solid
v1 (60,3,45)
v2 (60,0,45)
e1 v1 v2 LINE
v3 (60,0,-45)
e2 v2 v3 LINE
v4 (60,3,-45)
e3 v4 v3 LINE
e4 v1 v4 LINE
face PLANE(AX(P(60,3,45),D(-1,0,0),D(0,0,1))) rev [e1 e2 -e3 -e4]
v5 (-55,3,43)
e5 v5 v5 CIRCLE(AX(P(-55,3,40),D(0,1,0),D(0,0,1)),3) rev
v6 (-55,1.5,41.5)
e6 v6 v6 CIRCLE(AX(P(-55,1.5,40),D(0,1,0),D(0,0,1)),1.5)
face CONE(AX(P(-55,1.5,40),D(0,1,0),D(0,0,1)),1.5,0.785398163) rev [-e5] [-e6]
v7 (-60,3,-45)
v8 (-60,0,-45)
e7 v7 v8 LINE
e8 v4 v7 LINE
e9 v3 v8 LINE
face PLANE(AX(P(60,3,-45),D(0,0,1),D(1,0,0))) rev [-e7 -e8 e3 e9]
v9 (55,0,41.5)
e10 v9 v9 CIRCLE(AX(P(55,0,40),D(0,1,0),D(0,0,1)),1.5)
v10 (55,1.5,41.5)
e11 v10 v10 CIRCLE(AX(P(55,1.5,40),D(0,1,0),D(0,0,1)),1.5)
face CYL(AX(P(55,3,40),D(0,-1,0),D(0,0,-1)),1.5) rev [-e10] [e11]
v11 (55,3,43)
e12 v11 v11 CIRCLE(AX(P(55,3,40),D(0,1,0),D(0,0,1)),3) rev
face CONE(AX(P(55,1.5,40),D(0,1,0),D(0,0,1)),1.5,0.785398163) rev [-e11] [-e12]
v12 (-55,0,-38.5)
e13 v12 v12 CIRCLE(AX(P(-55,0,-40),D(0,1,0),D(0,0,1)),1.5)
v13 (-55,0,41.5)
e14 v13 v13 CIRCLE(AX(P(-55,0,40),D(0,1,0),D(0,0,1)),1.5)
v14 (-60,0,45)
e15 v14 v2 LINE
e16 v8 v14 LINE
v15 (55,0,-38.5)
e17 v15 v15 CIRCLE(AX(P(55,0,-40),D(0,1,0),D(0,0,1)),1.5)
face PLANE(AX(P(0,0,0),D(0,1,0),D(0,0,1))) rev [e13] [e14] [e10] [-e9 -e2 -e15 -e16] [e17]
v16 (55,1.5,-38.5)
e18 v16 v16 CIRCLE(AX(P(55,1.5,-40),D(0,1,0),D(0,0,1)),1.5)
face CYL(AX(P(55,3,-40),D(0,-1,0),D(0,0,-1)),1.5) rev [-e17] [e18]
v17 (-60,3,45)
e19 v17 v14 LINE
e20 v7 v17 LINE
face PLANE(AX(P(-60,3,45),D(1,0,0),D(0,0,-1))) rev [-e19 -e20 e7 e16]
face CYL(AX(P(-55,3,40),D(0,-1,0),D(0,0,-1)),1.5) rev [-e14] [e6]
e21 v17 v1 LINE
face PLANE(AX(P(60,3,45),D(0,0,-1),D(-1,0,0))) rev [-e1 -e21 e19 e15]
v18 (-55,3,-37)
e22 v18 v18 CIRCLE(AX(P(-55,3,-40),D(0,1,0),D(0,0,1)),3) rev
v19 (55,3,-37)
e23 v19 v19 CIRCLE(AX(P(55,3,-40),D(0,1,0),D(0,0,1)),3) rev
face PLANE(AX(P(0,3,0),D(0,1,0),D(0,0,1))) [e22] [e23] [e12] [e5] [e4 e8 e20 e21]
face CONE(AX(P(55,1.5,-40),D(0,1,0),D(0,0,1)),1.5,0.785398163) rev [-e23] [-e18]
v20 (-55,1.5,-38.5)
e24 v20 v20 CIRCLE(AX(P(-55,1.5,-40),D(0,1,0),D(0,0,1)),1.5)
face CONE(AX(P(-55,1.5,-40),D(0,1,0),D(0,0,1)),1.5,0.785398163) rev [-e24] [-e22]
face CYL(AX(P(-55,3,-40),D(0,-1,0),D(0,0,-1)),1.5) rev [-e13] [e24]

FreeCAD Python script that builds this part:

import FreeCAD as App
import Part
import Sketcher


def edges_at(feature, points):
    """Names of the edges that pass closest to the given points."""
    edges = feature.Shape.Edges
    near = lambda p: min(range(len(edges)), key=lambda i: edges[i].distToShape(Part.Vertex(*p))[0])
    return sorted({f"Edge{near(p) + 1}" for p in points})


def add_polygon(sketch, points):
    """Adds a closed chain of lines whose ends are joined by coincident constraints."""
    first, n = sketch.GeometryCount, len(points)
    for a, b in zip(points, points[1:] + points[:1]):
        sketch.addGeometry(Part.LineSegment(App.Vector(*a, 0), App.Vector(*b, 0)), False)
    for i in range(n):
        sketch.addConstraint(Sketcher.Constraint("Coincident", first + i, 2, first + (i + 1) % n, 1))

doc = App.newDocument("Part")
body = doc.addObject("PartDesign::Body", "Body")

sketch1 = body.newObject("Sketcher::SketchObject", "Sketch")
sketch1.AttachmentSupport = (doc.getObject("XZ_Plane"), [""])
sketch1.MapMode = "FlatFace"
add_polygon(sketch1, [(-60, -45), (-60, 45), (60, 45), (60, -45)])
sketch1.addGeometry(Part.Circle(App.Vector(-55, 40, 0), App.Vector(0, 0, 1), 1.5), False)
sketch1.addGeometry(Part.Circle(App.Vector(55, 40, 0), App.Vector(0, 0, 1), 1.5), False)
sketch1.addGeometry(Part.Circle(App.Vector(-55, -40, 0), App.Vector(0, 0, 1), 1.5), False)
sketch1.addGeometry(Part.Circle(App.Vector(55, -40, 0), App.Vector(0, 0, 1), 1.5), False)
sketch1.addConstraint(Sketcher.Constraint("Vertical", 0))
sketch1.addConstraint(Sketcher.Constraint("Horizontal", 1))
sketch1.addConstraint(Sketcher.Constraint("Vertical", 2))
sketch1.addConstraint(Sketcher.Constraint("Horizontal", 3))
sketch1.addConstraint(Sketcher.Constraint("Equal", 4, 5))
sketch1.addConstraint(Sketcher.Constraint("Equal", 5, 6))
sketch1.addConstraint(Sketcher.Constraint("Equal", 6, 7))
sketch1.addConstraint(Sketcher.Constraint("Symmetric", 5, 3, 6, 3, -1, 1))
sketch1.addConstraint(Sketcher.Constraint("Symmetric", 4, 3, 7, 3, -1, 1))
sketch1.addConstraint(Sketcher.Constraint("Symmetric", 0, 2, 2, 2, -1, 1))
sketch1.addConstraint(Sketcher.Constraint("Symmetric", 4, 3, 5, 3, -2))
sketch1.addConstraint(Sketcher.Constraint("Diameter", 4, 3.0))
sketch1.addConstraint(Sketcher.Constraint("DistanceX", 1, 1, 1, 2, 120.0))
sketch1.addConstraint(Sketcher.Constraint("DistanceY", 0, 1, 0, 2, 90.0))
sketch1.addConstraint(Sketcher.Constraint("DistanceX", 4, 3, -1, 1, 55.0))
sketch1.addConstraint(Sketcher.Constraint("DistanceY", -1, 1, 4, 3, 40.0))
pad1 = body.newObject("PartDesign::Pad", "Pad")
pad1.Profile = sketch1
pad1.Length = 3
pad1.Reversed = True
doc.recompute()

chamfer = body.newObject("PartDesign::Chamfer", "Chamfer")
chamfer.Base = (pad1, edges_at(pad1, [
    (-55, 3, -41.5),
    (-55, 3, 38.5),
    (55, 3, 38.5),
    (55, 3, -41.5),
]))
chamfer.Size = 1.5

doc.recompute()
